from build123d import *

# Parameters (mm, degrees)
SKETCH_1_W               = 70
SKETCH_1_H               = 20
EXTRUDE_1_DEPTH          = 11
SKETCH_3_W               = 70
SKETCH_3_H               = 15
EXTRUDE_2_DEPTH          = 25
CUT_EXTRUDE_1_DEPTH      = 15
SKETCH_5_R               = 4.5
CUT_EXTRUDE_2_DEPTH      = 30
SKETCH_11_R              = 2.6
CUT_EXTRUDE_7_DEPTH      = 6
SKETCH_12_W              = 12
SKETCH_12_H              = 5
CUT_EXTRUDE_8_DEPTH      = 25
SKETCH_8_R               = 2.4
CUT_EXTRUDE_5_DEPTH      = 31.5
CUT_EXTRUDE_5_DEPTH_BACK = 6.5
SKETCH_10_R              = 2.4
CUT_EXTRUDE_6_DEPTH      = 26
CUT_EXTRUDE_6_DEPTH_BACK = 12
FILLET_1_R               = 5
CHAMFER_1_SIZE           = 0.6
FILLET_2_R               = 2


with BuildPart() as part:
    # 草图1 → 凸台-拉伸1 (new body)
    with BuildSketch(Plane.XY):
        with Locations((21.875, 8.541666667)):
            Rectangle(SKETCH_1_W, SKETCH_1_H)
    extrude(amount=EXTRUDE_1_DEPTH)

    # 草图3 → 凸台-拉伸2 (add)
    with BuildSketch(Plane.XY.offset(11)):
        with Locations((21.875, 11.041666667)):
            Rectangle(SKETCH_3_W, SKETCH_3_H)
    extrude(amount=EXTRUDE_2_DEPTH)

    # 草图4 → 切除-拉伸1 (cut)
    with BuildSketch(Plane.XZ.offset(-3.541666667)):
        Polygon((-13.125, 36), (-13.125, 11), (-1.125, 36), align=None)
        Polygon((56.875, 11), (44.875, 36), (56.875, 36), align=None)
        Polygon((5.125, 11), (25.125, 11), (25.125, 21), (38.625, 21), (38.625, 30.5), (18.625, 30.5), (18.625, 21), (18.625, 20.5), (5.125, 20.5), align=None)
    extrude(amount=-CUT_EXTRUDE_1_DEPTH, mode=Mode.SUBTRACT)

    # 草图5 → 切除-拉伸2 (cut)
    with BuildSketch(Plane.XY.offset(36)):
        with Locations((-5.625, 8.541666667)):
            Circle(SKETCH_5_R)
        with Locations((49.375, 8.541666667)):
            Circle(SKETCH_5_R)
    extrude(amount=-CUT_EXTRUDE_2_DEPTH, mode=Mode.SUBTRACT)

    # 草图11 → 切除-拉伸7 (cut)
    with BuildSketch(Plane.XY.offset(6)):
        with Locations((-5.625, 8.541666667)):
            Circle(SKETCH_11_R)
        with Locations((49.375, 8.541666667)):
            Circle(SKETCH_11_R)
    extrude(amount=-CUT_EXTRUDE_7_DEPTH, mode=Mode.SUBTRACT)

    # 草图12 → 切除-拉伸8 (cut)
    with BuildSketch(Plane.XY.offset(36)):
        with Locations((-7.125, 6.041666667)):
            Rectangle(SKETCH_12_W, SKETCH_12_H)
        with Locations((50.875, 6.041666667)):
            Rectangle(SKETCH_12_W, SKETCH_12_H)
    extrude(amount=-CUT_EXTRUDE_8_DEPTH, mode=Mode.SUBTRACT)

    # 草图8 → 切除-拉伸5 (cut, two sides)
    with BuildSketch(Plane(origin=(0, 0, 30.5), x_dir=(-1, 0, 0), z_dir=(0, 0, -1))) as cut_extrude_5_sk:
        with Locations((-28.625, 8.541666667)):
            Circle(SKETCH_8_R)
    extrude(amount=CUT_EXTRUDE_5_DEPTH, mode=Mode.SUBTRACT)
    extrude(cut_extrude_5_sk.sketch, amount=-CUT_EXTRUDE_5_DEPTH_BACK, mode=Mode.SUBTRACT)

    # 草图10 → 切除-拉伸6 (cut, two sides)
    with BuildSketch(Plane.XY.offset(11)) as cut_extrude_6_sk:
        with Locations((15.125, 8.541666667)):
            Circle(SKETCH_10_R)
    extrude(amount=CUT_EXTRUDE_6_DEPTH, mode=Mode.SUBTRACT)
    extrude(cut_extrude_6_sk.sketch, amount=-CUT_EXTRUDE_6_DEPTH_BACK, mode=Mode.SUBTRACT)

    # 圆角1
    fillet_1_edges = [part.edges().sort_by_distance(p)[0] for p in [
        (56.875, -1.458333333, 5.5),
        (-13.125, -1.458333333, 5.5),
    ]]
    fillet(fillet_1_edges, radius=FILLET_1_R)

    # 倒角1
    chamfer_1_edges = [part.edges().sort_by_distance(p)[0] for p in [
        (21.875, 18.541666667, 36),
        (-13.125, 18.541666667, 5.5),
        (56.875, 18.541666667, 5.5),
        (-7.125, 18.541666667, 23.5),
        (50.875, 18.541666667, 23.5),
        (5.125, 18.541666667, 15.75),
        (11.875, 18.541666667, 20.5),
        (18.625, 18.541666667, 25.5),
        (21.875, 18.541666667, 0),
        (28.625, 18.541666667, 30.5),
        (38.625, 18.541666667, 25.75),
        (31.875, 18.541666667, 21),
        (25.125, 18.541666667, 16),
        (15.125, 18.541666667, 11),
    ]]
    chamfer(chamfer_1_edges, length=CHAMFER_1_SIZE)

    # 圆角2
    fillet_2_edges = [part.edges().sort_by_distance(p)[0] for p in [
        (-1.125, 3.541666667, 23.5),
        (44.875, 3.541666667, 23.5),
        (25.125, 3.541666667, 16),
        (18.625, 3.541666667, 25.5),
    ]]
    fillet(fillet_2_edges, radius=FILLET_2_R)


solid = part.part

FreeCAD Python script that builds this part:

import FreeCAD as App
import Part
import Sketcher
from FreeCAD import Vector
Q = App.Units.Quantity


def edges_at(feature, points):
    """Names of the edges that pass closest to the given points."""
    edges = feature.Shape.Edges
    near = lambda p: min(range(len(edges)), key=lambda i: edges[i].distToShape(Part.Vertex(*p))[0])
    return sorted({f"Edge{near(p) + 1}" for p in points})

doc = App.newDocument("Part")
params = doc.addObject("Spreadsheet::Sheet", "Params")
for row, (alias, value) in enumerate([
    ("sketch1_width", "70 mm"),
    ("sketch1_height", "20 mm"),
    ("pad1_length", "11 mm"),
    ("sketch2_width", "70 mm"),
    ("sketch2_height", "15 mm"),
    ("pad2_length", "25 mm"),
    ("sketch3_width", "12 mm"),
    ("sketch3_width2", "20 mm"),
    ("sketch3_height", "25 mm"),
    ("sketch3_height2", "10 mm"),
    ("sketch3_width3", "13.5 mm"),
    ("pocket1_length", "15 mm"),
    ("sketch4_diameter", "9 mm"),
    ("pocket2_length", "30 mm"),
    ("sketch5_diameter", "5.2 mm"),
    ("pocket3_length", "6 mm"),
    ("sketch6_width", "12 mm"),
    ("sketch6_height", "5 mm"),
    ("pocket4_length", "25 mm"),
    ("sketch7_diameter", "4.8 mm"),
    ("sketch8_diameter", "4.8 mm"),
    ("fillet_radius", "5 mm"),
    ("chamfer_size", "0.6 mm"),
    ("fillet2_radius", "2 mm"),
], start=1):
    params.set(f"A{row}", alias)
    params.set(f"B{row}", "=" + value)
    params.setAlias(f"B{row}", alias)

body = doc.addObject("PartDesign::Body", "Body")

sketch1 = body.newObject("Sketcher::SketchObject", "Sketch")
sketch1.AttachmentSupport = (doc.getObject("XY_Plane"), [""])
sketch1.MapMode = "FlatFace"
sketch1.addGeometry([
    Part.LineSegment(Vector(-13, 19, 0), Vector(-13, -1, 0)),
    Part.LineSegment(Vector(-13, -1, 0), Vector(57, -1, 0)),
    Part.LineSegment(Vector(57, -1, 0), Vector(57, 19, 0)),
    Part.LineSegment(Vector(57, 19, 0), Vector(-13, 19, 0)),
], False)
sketch1.addConstraint([
    Sketcher.Constraint("Coincident", 0, 2, 1, 1),
    Sketcher.Constraint("Coincident", 1, 2, 2, 1),
    Sketcher.Constraint("Coincident", 2, 2, 3, 1),
    Sketcher.Constraint("Coincident", 3, 2, 0, 1),
    Sketcher.Constraint("Vertical", 0),
    Sketcher.Constraint("Horizontal", 1),
    Sketcher.Constraint("Vertical", 2),
    Sketcher.Constraint("Horizontal", 3),
    Sketcher.Constraint("DistanceX", 1, 1, 1, 2, Q("70 mm")),
    Sketcher.Constraint("DistanceY", 0, 2, 0, 1, Q("20 mm")),
    Sketcher.Constraint("DistanceX", 0, 2, -1, 1, Q("13.125 mm")),
    Sketcher.Constraint("DistanceY", 0, 2, -1, 1, Q("1.458333 mm")),
])
sketch1.setExpression("Constraints[8]", "Params.sketch1_width")
sketch1.setExpression("Constraints[9]", "Params.sketch1_height")
pad1 = body.newObject("PartDesign::Pad", "Pad")
pad1.Profile = sketch1
pad1.setExpression("Length", "Params.pad1_length")

sketch2 = body.newObject("Sketcher::SketchObject", "Sketch001")
sketch2.AttachmentSupport = (doc.getObject("XY_Plane"), [""])
sketch2.MapMode = "FlatFace"
sketch2.AttachmentOffset = App.Placement(Vector(0, 0, 11), App.Rotation())
sketch2.addGeometry([
    Part.LineSegment(Vector(-13, 19, 0), Vector(-13, 4, 0)),
    Part.LineSegment(Vector(-13, 4, 0), Vector(57, 4, 0)),
    Part.LineSegment(Vector(57, 4, 0), Vector(57, 19, 0)),
    Part.LineSegment(Vector(57, 19, 0), Vector(-13, 19, 0)),
], False)
sketch2.addConstraint([
    Sketcher.Constraint("Coincident", 0, 2, 1, 1),
    Sketcher.Constraint("Coincident", 1, 2, 2, 1),
    Sketcher.Constraint("Coincident", 2, 2, 3, 1),
    Sketcher.Constraint("Coincident", 3, 2, 0, 1),
    Sketcher.Constraint("Vertical", 0),
    Sketcher.Constraint("Horizontal", 1),
    Sketcher.Constraint("Vertical", 2),
    Sketcher.Constraint("Horizontal", 3),
    Sketcher.Constraint("DistanceX", 1, 1, 1, 2, Q("70 mm")),
    Sketcher.Constraint("DistanceY", 0, 2, 0, 1, Q("15 mm")),
    Sketcher.Constraint("DistanceX", 0, 2, -1, 1, Q("13.125 mm")),
    Sketcher.Constraint("DistanceY", -1, 1, 0, 2, Q("3.541667 mm")),
])
sketch2.setExpression("Constraints[8]", "Params.sketch2_width")
sketch2.setExpression("Constraints[9]", "Params.sketch2_height")
pad2 = body.newObject("PartDesign::Pad", "Pad001")
pad2.Profile = sketch2
pad2.setExpression("Length", "Params.pad2_length")

sketch3 = body.newObject("Sketcher::SketchObject", "Sketch002")
sketch3.AttachmentSupport = (doc.getObject("XZ_Plane"), [""])
sketch3.MapMode = "FlatFace"
sketch3.AttachmentOffset = App.Placement(Vector(0, 0, -3.541667), App.Rotation())
sketch3.addGeometry([
    Part.LineSegment(Vector(-13, 36, 0), Vector(-13, 11, 0)),
    Part.LineSegment(Vector(-13, 11, 0), Vector(-1, 36, 0)),
    Part.LineSegment(Vector(-1, 36, 0), Vector(-13, 36, 0)),
    Part.LineSegment(Vector(45, 36, 0), Vector(57, 11, 0)),
    Part.LineSegment(Vector(57, 11, 0), Vector(57, 36, 0)),
    Part.LineSegment(Vector(57, 36, 0), Vector(45, 36, 0)),
    Part.LineSegment(Vector(5, 11, 0), Vector(25, 11, 0)),
    Part.LineSegment(Vector(25, 11, 0), Vector(25, 21, 0)),
    Part.LineSegment(Vector(25, 21, 0), Vector(39, 21, 0)),
    Part.LineSegment(Vector(39, 21, 0), Vector(39, 30, 0)),
    Part.LineSegment(Vector(39, 30, 0), Vector(19, 30, 0)),
    Part.LineSegment(Vector(19, 30, 0), Vector(19, 20, 0)),
    Part.LineSegment(Vector(19, 20, 0), Vector(5, 20, 0)),
    Part.LineSegment(Vector(5, 20, 0), Vector(5, 11, 0)),
], False)
sketch3.addConstraint([
    Sketcher.Constraint("Coincident", 0, 2, 1, 1),
    Sketcher.Constraint("Coincident", 1, 2, 2, 1),
    Sketcher.Constraint("Coincident", 2, 2, 0, 1),
    Sketcher.Constraint("Coincident", 3, 2, 4, 1),
    Sketcher.Constraint("Coincident", 4, 2, 5, 1),
    Sketcher.Constraint("Coincident", 5, 2, 3, 1),
    Sketcher.Constraint("Coincident", 6, 2, 7, 1),
    Sketcher.Constraint("Coincident", 7, 2, 8, 1),
    Sketcher.Constraint("Coincident", 8, 2, 9, 1),
    Sketcher.Constraint("Coincident", 9, 2, 10, 1),
    Sketcher.Constraint("Coincident", 10, 2, 11, 1),
    Sketcher.Constraint("Coincident", 11, 2, 12, 1),
    Sketcher.Constraint("Coincident", 12, 2, 13, 1),
    Sketcher.Constraint("Coincident", 13, 2, 6, 1),
    Sketcher.Constraint("Vertical", 0),
    Sketcher.Constraint("Horizontal", 2),
    Sketcher.Constraint("Vertical", 4),
    Sketcher.Constraint("Horizontal", 5),
    Sketcher.Constraint("Horizontal", 6),
    Sketcher.Constraint("Vertical", 7),
    Sketcher.Constraint("Horizontal", 8),
    Sketcher.Constraint("Vertical", 9),
    Sketcher.Constraint("Horizontal", 10),
    Sketcher.Constraint("Vertical", 11),
    Sketcher.Constraint("Horizontal", 12),
    Sketcher.Constraint("Vertical", 13),
    Sketcher.Constraint("Horizontal", 0, 2, 3, 2),
    Sketcher.Constraint("Horizontal", 2, 2, 4, 2),
    Sketcher.Constraint("Horizontal", 3, 2, 6, 2),
    Sketcher.Constraint("Equal", 2, 5),
    Sketcher.Constraint("Equal", 6, 10),
    Sketcher.Constraint("Equal", 7, 11),
    Sketcher.Constraint("DistanceX", 2, 2, 2, 1, Q("12 mm")),
    Sketcher.Constraint("DistanceX", 6, 1, 6, 2, Q("20 mm")),
    Sketcher.Constraint("DistanceY", 0, 2, 0, 1, Q("25 mm")),
    Sketcher.Constraint("DistanceY", 7, 1, 7, 2, Q("10 mm")),
    Sketcher.Constraint("DistanceX", 8, 1, 8, 2, Q("13.5 mm")),
    Sketcher.Constraint("DistanceY", 9, 1, 9, 2, Q("9.5 mm")),
    Sketcher.Constraint("DistanceY", -1, 1, 0, 2, Q("11 mm")),
    Sketcher.Constraint("DistanceX", 1, 2, 3, 2, Q("58 mm")),
    Sketcher.Constraint("DistanceX", 6, 2, 3, 2, Q("31.75 mm")),
    Sketcher.Constraint("DistanceX", 0, 2, -1, 1, Q("13.125 mm")),
])
sketch3.setExpression("Constraints[32]", "Params.sketch3_width")
sketch3.setExpression("Constraints[33]", "Params.sketch3_width2")
sketch3.setExpression("Constraints[34]", "Params.sketch3_height")
sketch3.setExpression("Constraints[35]", "Params.sketch3_height2")
sketch3.setExpression("Constraints[36]", "Params.sketch3_width3")
pocket1 = body.newObject("PartDesign::Pocket", "Pocket")
pocket1.Profile = sketch3
pocket1.setExpression("Length", "Params.pocket1_length")

sketch4 = body.newObject("Sketcher::SketchObject", "Sketch003")
sketch4.AttachmentSupport = (doc.getObject("XY_Plane"), [""])
sketch4.MapMode = "FlatFace"
sketch4.AttachmentOffset = App.Placement(Vector(0, 0, 36), App.Rotation())
sketch4.addGeometry([
    Part.Circle(Vector(-5.6, 8.5, 0), Vector(0, 0, 1), 4.5),
    Part.Circle(Vector(49.4, 8.5, 0), Vector(0, 0, 1), 4.5),
], False)
sketch4.addConstraint([
    Sketcher.Constraint("Equal", 0, 1),
    Sketcher.Constraint("Horizontal", 0, 3, 1, 3),
    Sketcher.Constraint("Diameter", 0, Q("9 mm")),
    Sketcher.Constraint("DistanceX", 0, 3, 1, 3, Q("55 mm")),
    Sketcher.Constraint("DistanceX", 0, 3, -1, 1, Q("5.625 mm")),
    Sketcher.Constraint("DistanceY", -1, 1, 0, 3, Q("8.541667 mm")),
])
sketch4.setExpression("Constraints[2]", "Params.sketch4_diameter")
pocket2 = body.newObject("PartDesign::Pocket", "Pocket001")
pocket2.Profile = sketch4
pocket2.setExpression("Length", "Params.pocket2_length")

sketch5 = body.newObject("Sketcher::SketchObject", "Sketch004")
sketch5.AttachmentSupport = (doc.getObject("XY_Plane"), [""])
sketch5.MapMode = "FlatFace"
sketch5.AttachmentOffset = App.Placement(Vector(0, 0, 6), App.Rotation())
sketch5.addGeometry([
    Part.Circle(Vector(-5.6, 8.5, 0), Vector(0, 0, 1), 2.6),
    Part.Circle(Vector(49.4, 8.5, 0), Vector(0, 0, 1), 2.6),
], False)
sketch5.addConstraint([
    Sketcher.Constraint("Equal", 0, 1),
    Sketcher.Constraint("Horizontal", 0, 3, 1, 3),
    Sketcher.Constraint("Diameter", 0, Q("5.2 mm")),
    Sketcher.Constraint("DistanceX", 0, 3, 1, 3, Q("55 mm")),
    Sketcher.Constraint("DistanceX", 0, 3, -1, 1, Q("5.625 mm")),
    Sketcher.Constraint("DistanceY", -1, 1, 0, 3, Q("8.541667 mm")),
])
sketch5.setExpression("Constraints[2]", "Params.sketch5_diameter")
pocket3 = body.newObject("PartDesign::Pocket", "Pocket002")
pocket3.Profile = sketch5
pocket3.setExpression("Length", "Params.pocket3_length")

sketch6 = body.newObject("Sketcher::SketchObject", "Sketch005")
sketch6.AttachmentSupport = (doc.getObject("XY_Plane"), [""])
sketch6.MapMode = "FlatFace"
sketch6.AttachmentOffset = App.Placement(Vector(0, 0, 36), App.Rotation())
sketch6.addGeometry([
    Part.LineSegment(Vector(-13, 9, 0), Vector(-13, 4, 0)),
    Part.LineSegment(Vector(-13, 4, 0), Vector(-1, 4, 0)),
    Part.LineSegment(Vector(-1, 4, 0), Vector(-1, 9, 0)),
    Part.LineSegment(Vector(-1, 9, 0), Vector(-13, 9, 0)),
    Part.LineSegment(Vector(45, 9, 0), Vector(45, 4, 0)),
    Part.LineSegment(Vector(45, 4, 0), Vector(57, 4, 0)),
    Part.LineSegment(Vector(57, 4, 0), Vector(57, 9, 0)),
    Part.LineSegment(Vector(57, 9, 0), Vector(45, 9, 0)),
], False)
sketch6.addConstraint([
    Sketcher.Constraint("Coincident", 0, 2, 1, 1),
    Sketcher.Constraint("Coincident", 1, 2, 2, 1),
    Sketcher.Constraint("Coincident", 2, 2, 3, 1),
    Sketcher.Constraint("Coincident", 3, 2, 0, 1),
    Sketcher.Constraint("Coincident", 4, 2, 5, 1),
    Sketcher.Constraint("Coincident", 5, 2, 6, 1),
    Sketcher.Constraint("Coincident", 6, 2, 7, 1),
    Sketcher.Constraint("Coincident", 7, 2, 4, 1),
    Sketcher.Constraint("Vertical", 0),
    Sketcher.Constraint("Horizontal", 1),
    Sketcher.Constraint("Vertical", 2),
    Sketcher.Constraint("Horizontal", 3),
    Sketcher.Constraint("Vertical", 4),
    Sketcher.Constraint("Horizontal", 5),
    Sketcher.Constraint("Vertical", 6),
    Sketcher.Constraint("Horizontal", 7),
    Sketcher.Constraint("Horizontal", 1, 2, 4, 2),
    Sketcher.Constraint("Horizontal", 3, 2, 6, 2),
    Sketcher.Constraint("Equal", 3, 5),
    Sketcher.Constraint("DistanceX", 1, 1, 1, 2, Q("12 mm")),
    Sketcher.Constraint("DistanceY", 0, 2, 0, 1, Q("5 mm")),
    Sketcher.Constraint("DistanceX", 1, 2, 4, 2, Q("46 mm")),
    Sketcher.Constraint("DistanceX", 0, 2, -1, 1, Q("13.125 mm")),
    Sketcher.Constraint("DistanceY", -1, 1, 0, 2, Q("3.541667 mm")),
])
sketch6.setExpression("Constraints[19]", "Params.sketch6_width")
sketch6.setExpression("Constraints[20]", "Params.sketch6_height")
pocket4 = body.newObject("PartDesign::Pocket", "Pocket003")
pocket4.Profile = sketch6
pocket4.setExpression("Length", "Params.pocket4_length")

sketch7 = body.newObject("Sketcher::SketchObject", "Sketch006")
sketch7.AttachmentSupport = (doc.getObject("XY_Plane"), [""])
sketch7.MapMode = "FlatFace"
sketch7.AttachmentOffset = App.Placement(Vector(0, 0, 30.5), App.Rotation())
sketch7.addGeometry(Part.Circle(Vector(28.6, 8.5, 0), Vector(0, 0, 1), 2.4), False)
sketch7.addConstraint([
    Sketcher.Constraint("Diameter", 0, Q("4.8 mm")),
    Sketcher.Constraint("DistanceX", -1, 1, 0, 3, Q("28.625 mm")),
    Sketcher.Constraint("DistanceY", -1, 1, 0, 3, Q("8.541667 mm")),
])
sketch7.setExpression("Constraints[0]", "Params.sketch7_diameter")
pocket5 = body.newObject("PartDesign::Pocket", "Pocket004")
pocket5.Profile = sketch7
pocket5.Type = "ThroughAll"
pocket5.Midplane = True

sketch8 = body.newObject("Sketcher::SketchObject", "Sketch007")
sketch8.AttachmentSupport = (doc.getObject("XY_Plane"), [""])
sketch8.MapMode = "FlatFace"
sketch8.AttachmentOffset = App.Placement(Vector(0, 0, 11), App.Rotation())
sketch8.addGeometry(Part.Circle(Vector(15.1, 8.5, 0), Vector(0, 0, 1), 2.4), False)
sketch8.addConstraint([
    Sketcher.Constraint("Diameter", 0, Q("4.8 mm")),
    Sketcher.Constraint("DistanceX", -1, 1, 0, 3, Q("15.125 mm")),
    Sketcher.Constraint("DistanceY", -1, 1, 0, 3, Q("8.541667 mm")),
])
sketch8.setExpression("Constraints[0]", "Params.sketch8_diameter")
pocket6 = body.newObject("PartDesign::Pocket", "Pocket005")
pocket6.Profile = sketch8
pocket6.Type = "ThroughAll"
pocket6.Midplane = True
doc.recompute()

fillet = body.newObject("PartDesign::Fillet", "Fillet")
fillet.Base = (pocket6, edges_at(pocket6, [(56.875, -1.458, 5.5), (-13.125, -1.458, 5.5)]))
fillet.setExpression("Radius", "Params.fillet_radius")
doc.recompute()

chamfer = body.newObject("PartDesign::Chamfer", "Chamfer")
chamfer.Base = (fillet, edges_at(fillet, [
    (21.875, 18.542, 36),
    (-13.125, 18.542, 5.5),
    (56.875, 18.542, 5.5),
    (-7.125, 18.542, 23.5),
    (50.875, 18.542, 23.5),
    (5.125, 18.542, 15.75),
    (11.875, 18.542, 20.5),
    (18.625, 18.542, 25.5),
    (21.875, 18.542, 0),
    (28.625, 18.542, 30.5),
    (38.625, 18.542, 25.75),
    (31.875, 18.542, 21),
    (25.125, 18.542, 16),
    (15.125, 18.542, 11),
]))
chamfer.setExpression("Size", "Params.chamfer_size")
doc.recompute()

fillet2 = body.newObject("PartDesign::Fillet", "Fillet001")
fillet2.Base = (chamfer, edges_at(chamfer, [
    (-1.125, 3.542, 23.5),
    (44.875, 3.542, 23.5),
    (25.125, 3.542, 16),
    (18.625, 3.542, 25.5),
]))
fillet2.setExpression("Radius", "Params.fillet2_radius")

doc.recompute()
